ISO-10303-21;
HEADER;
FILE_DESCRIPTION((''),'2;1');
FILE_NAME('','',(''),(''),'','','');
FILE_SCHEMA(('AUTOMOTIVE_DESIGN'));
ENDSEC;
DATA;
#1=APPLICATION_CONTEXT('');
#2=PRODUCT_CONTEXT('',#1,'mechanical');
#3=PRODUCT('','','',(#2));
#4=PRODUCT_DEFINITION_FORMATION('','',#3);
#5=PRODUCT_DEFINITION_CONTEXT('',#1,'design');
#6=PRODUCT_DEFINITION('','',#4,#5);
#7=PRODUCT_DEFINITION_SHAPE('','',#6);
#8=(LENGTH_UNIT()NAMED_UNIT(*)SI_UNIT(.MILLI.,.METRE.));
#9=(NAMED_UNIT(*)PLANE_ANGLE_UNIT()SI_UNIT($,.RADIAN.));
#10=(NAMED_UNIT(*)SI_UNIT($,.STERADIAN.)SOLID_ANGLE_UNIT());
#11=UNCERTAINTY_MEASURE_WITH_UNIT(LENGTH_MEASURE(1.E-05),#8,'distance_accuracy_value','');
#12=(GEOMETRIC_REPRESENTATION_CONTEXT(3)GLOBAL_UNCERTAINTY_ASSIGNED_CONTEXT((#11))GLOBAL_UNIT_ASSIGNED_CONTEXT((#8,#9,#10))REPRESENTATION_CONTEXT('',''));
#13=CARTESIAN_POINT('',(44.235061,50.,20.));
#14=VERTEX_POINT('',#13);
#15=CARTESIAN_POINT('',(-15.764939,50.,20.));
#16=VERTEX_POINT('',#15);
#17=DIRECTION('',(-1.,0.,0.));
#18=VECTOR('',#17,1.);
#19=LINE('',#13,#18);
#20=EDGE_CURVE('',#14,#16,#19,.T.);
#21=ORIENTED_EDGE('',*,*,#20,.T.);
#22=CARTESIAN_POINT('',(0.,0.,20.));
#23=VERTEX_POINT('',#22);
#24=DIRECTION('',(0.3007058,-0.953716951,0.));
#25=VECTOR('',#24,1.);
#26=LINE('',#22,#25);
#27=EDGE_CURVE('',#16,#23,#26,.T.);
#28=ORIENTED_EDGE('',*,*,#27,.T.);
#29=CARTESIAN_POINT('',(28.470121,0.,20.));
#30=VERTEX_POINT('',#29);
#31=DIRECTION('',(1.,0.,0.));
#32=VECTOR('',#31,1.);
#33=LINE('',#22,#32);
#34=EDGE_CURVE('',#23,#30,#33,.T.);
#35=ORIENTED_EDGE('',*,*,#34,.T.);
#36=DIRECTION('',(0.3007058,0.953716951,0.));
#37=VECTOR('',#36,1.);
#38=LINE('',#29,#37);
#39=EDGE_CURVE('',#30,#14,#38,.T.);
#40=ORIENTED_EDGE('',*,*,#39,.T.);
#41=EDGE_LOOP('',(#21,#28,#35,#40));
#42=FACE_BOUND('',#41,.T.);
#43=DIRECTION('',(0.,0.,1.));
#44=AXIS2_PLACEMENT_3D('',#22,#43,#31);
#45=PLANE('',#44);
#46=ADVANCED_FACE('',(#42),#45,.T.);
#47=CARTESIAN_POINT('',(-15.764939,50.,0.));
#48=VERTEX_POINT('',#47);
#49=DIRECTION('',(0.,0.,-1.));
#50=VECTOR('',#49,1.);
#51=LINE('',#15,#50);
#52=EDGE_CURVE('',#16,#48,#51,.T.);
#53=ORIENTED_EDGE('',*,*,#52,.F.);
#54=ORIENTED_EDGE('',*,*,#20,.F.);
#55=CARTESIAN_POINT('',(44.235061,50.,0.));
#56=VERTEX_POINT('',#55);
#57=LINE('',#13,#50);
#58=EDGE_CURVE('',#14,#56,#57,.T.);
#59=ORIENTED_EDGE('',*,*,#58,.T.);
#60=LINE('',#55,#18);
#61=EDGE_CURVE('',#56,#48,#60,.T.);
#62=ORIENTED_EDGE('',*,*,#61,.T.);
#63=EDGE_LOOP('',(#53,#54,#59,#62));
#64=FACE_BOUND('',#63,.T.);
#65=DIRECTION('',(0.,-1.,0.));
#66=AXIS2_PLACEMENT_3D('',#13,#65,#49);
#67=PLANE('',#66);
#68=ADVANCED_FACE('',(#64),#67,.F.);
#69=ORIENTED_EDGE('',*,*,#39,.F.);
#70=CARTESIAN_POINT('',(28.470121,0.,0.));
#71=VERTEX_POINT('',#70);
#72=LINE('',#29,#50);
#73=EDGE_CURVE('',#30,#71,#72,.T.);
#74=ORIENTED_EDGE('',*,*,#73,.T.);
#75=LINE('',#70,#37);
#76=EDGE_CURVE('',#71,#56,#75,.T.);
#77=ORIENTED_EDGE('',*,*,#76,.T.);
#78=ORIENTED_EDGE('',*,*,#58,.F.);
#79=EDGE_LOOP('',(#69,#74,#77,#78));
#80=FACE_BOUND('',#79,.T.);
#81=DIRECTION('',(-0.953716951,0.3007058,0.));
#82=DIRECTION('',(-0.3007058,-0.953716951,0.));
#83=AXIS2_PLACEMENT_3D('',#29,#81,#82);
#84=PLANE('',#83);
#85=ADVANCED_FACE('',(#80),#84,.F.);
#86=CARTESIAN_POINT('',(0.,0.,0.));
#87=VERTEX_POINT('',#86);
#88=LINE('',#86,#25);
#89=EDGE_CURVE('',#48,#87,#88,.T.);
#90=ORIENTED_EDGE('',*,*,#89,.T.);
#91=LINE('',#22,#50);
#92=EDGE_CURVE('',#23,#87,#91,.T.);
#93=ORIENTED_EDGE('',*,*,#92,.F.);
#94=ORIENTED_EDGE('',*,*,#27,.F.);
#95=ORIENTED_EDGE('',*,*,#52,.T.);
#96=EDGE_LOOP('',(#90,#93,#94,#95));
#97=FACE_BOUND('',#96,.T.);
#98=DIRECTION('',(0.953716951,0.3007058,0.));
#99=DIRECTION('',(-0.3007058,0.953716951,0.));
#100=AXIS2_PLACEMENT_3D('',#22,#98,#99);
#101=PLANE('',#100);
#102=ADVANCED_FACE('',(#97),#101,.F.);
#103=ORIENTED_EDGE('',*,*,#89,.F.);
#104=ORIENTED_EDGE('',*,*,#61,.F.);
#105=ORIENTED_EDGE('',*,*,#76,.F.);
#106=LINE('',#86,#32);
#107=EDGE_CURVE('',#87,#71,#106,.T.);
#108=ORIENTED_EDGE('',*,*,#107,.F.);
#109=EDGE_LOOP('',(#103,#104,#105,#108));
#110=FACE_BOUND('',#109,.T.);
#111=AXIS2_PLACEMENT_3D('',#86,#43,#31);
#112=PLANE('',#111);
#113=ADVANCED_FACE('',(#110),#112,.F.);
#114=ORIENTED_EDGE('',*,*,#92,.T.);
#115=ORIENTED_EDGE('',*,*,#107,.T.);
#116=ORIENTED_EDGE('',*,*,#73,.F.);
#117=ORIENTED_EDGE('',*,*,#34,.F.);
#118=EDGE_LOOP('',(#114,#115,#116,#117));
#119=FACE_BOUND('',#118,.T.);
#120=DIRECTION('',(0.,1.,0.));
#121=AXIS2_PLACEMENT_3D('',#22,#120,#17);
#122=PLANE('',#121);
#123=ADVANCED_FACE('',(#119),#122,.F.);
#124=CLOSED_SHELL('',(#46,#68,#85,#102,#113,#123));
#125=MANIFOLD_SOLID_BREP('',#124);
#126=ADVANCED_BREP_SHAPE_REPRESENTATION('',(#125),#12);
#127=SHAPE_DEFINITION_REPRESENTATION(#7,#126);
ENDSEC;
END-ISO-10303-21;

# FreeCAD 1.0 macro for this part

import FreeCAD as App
import Part
import Sketcher
Q = App.Units.Quantity


def add_polygon(sketch, points):
    """Adds a closed chain of lines whose ends are joined by coincident constraints."""
    first, n = sketch.GeometryCount, len(points)
    for a, b in zip(points, points[1:] + points[:1]):
        sketch.addGeometry(Part.LineSegment(App.Vector(*a, 0), App.Vector(*b, 0)), False)
    for i in range(n):
        sketch.addConstraint(Sketcher.Constraint("Coincident", first + i, 2, first + (i + 1) % n, 1))

doc = App.newDocument("Part")
body = doc.addObject("PartDesign::Body", "Body")

# Sketch on XY plane
sketch1 = body.newObject("Sketcher::SketchObject", "Sketch")
sketch1.AttachmentSupport = (doc.getObject("XY_Plane"), [""])
sketch1.MapMode = "FlatFace"
add_polygon(sketch1, [(-15.764939, 50), (0, 0), (28.470121, 0), (44.235061, 50)])  # lines 0-3
sketch1.addConstraint([
    Sketcher.Constraint("Horizontal", 1),
    Sketcher.Constraint("Horizontal", 3),
    Sketcher.Constraint("Coincident", 0, 2, -1, 1),
    Sketcher.Constraint("Equal", 0, 2),
    Sketcher.Constraint("DistanceX", 3, 2, 3, 1, Q("60 mm")),
    Sketcher.Constraint("DistanceY", -1, 1, 2, 2, Q("50 mm")),
    Sketcher.Constraint("Angle", 0, Q("-72.5 deg")),
])
pad1 = body.newObject("PartDesign::Pad", "Pad")
pad1.Profile = sketch1
pad1.Length = 20

doc.recompute()
